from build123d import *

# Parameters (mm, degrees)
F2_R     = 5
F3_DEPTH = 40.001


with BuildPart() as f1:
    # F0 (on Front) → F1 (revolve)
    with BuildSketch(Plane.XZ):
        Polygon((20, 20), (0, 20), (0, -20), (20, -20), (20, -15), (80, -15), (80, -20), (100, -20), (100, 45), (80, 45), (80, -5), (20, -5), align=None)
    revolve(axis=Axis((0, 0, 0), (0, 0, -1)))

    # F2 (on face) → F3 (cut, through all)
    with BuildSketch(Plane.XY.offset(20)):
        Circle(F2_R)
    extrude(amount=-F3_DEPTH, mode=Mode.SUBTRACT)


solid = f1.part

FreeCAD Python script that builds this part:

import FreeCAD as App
import Part
import Sketcher

doc = App.newDocument("Part")
body = doc.addObject("PartDesign::Body", "Body")

sketch1 = doc.addObject("Sketcher::SketchObject", "Sketch")
body.addObject(sketch1)
sketch1.AttachmentSupport = (doc.XZ_Plane, [""])
sketch1.MapMode = "FlatFace"
sketch1.addGeometry(Part.LineSegment(App.Vector(20, 20, 0), App.Vector(0, 20, 0)), False)
sketch1.addGeometry(Part.LineSegment(App.Vector(0, 20, 0), App.Vector(0, -20, 0)), False)
sketch1.addGeometry(Part.LineSegment(App.Vector(0, -20, 0), App.Vector(20, -20, 0)), False)
sketch1.addGeometry(Part.LineSegment(App.Vector(20, -20, 0), App.Vector(20, -15, 0)), False)
sketch1.addGeometry(Part.LineSegment(App.Vector(20, -15, 0), App.Vector(80, -15, 0)), False)
sketch1.addGeometry(Part.LineSegment(App.Vector(80, -15, 0), App.Vector(80, -20, 0)), False)
sketch1.addGeometry(Part.LineSegment(App.Vector(80, -20, 0), App.Vector(100, -20, 0)), False)
sketch1.addGeometry(Part.LineSegment(App.Vector(100, -20, 0), App.Vector(100, 45, 0)), False)
sketch1.addGeometry(Part.LineSegment(App.Vector(100, 45, 0), App.Vector(80, 45, 0)), False)
sketch1.addGeometry(Part.LineSegment(App.Vector(80, 45, 0), App.Vector(80, -5, 0)), False)
sketch1.addGeometry(Part.LineSegment(App.Vector(80, -5, 0), App.Vector(20, -5, 0)), False)
sketch1.addGeometry(Part.LineSegment(App.Vector(20, -5, 0), App.Vector(20, 20, 0)), False)
sketch1.addConstraint(Sketcher.Constraint("Coincident", 0, 2, 1, 1))
sketch1.addConstraint(Sketcher.Constraint("Coincident", 1, 2, 2, 1))
sketch1.addConstraint(Sketcher.Constraint("Coincident", 2, 2, 3, 1))
sketch1.addConstraint(Sketcher.Constraint("Coincident", 3, 2, 4, 1))
sketch1.addConstraint(Sketcher.Constraint("Coincident", 4, 2, 5, 1))
sketch1.addConstraint(Sketcher.Constraint("Coincident", 5, 2, 6, 1))
sketch1.addConstraint(Sketcher.Constraint("Coincident", 6, 2, 7, 1))
sketch1.addConstraint(Sketcher.Constraint("Coincident", 7, 2, 8, 1))
sketch1.addConstraint(Sketcher.Constraint("Coincident", 8, 2, 9, 1))
sketch1.addConstraint(Sketcher.Constraint("Coincident", 9, 2, 10, 1))
sketch1.addConstraint(Sketcher.Constraint("Coincident", 10, 2, 11, 1))
sketch1.addConstraint(Sketcher.Constraint("Coincident", 11, 2, 0, 1))
sketch1.addConstraint(Sketcher.Constraint("Horizontal", 0))
sketch1.addConstraint(Sketcher.Constraint("Vertical", 1))
sketch1.addConstraint(Sketcher.Constraint("Horizontal", 2))
sketch1.addConstraint(Sketcher.Constraint("Vertical", 3))
sketch1.addConstraint(Sketcher.Constraint("Horizontal", 4))
sketch1.addConstraint(Sketcher.Constraint("Vertical", 5))
sketch1.addConstraint(Sketcher.Constraint("Horizontal", 6))
sketch1.addConstraint(Sketcher.Constraint("Vertical", 7))
sketch1.addConstraint(Sketcher.Constraint("Horizontal", 8))
sketch1.addConstraint(Sketcher.Constraint("Vertical", 9))
sketch1.addConstraint(Sketcher.Constraint("Horizontal", 10))
sketch1.addConstraint(Sketcher.Constraint("Vertical", 11))
sketch1.addConstraint(Sketcher.Constraint("Symmetric", 0, 2, 1, 2, -1, 1))
sketch1.addConstraint(Sketcher.Constraint("Horizontal", 2, 2, 5, 2))
sketch1.addConstraint(Sketcher.Constraint("Vertical", 5, 2, 8, 2))
sketch1.addConstraint(Sketcher.Constraint("Vertical", 3, 2, 10, 2))
sketch1.addConstraint(Sketcher.Constraint("Equal", 2, 6))
sketch1.addConstraint(Sketcher.Constraint("DistanceX", 0, 2, 0, 1, 20.0))
sketch1.addConstraint(Sketcher.Constraint("DistanceX", 4, 1, 4, 2, 60.0))
sketch1.addConstraint(Sketcher.Constraint("DistanceY", 1, 2, 1, 1, 40.0))
sketch1.addConstraint(Sketcher.Constraint("DistanceY", 3, 1, 3, 2, 5.0))
sketch1.addConstraint(Sketcher.Constraint("DistanceY", 7, 1, 7, 2, 65.0))
sketch1.addConstraint(Sketcher.Constraint("DistanceY", 9, 2, 9, 1, 50.0))
revolution = doc.addObject("PartDesign::Revolution", "Revolution")
body.addObject(revolution)
revolution.Profile = sketch1
revolution.ReferenceAxis = (sketch1, ["V_Axis"])
revolution.Angle = 360

sketch2 = doc.addObject("Sketcher::SketchObject", "Sketch001")
body.addObject(sketch2)
sketch2.AttachmentSupport = (doc.XY_Plane, [""])
sketch2.MapMode = "FlatFace"
sketch2.AttachmentOffset = App.Placement(App.Vector(0, 0, 20), App.Rotation())
sketch2.addGeometry(Part.Circle(App.Vector(0, 0, 0), App.Vector(0, 0, 1), 5), False)
sketch2.addConstraint(Sketcher.Constraint("Coincident", 0, 3, -1, 1))
sketch2.addConstraint(Sketcher.Constraint("Diameter", 0, 10.0))
pocket1 = doc.addObject("PartDesign::Pocket", "Pocket")
body.addObject(pocket1)
pocket1.Profile = sketch2
pocket1.Type = "ThroughAll"

doc.recompute()
